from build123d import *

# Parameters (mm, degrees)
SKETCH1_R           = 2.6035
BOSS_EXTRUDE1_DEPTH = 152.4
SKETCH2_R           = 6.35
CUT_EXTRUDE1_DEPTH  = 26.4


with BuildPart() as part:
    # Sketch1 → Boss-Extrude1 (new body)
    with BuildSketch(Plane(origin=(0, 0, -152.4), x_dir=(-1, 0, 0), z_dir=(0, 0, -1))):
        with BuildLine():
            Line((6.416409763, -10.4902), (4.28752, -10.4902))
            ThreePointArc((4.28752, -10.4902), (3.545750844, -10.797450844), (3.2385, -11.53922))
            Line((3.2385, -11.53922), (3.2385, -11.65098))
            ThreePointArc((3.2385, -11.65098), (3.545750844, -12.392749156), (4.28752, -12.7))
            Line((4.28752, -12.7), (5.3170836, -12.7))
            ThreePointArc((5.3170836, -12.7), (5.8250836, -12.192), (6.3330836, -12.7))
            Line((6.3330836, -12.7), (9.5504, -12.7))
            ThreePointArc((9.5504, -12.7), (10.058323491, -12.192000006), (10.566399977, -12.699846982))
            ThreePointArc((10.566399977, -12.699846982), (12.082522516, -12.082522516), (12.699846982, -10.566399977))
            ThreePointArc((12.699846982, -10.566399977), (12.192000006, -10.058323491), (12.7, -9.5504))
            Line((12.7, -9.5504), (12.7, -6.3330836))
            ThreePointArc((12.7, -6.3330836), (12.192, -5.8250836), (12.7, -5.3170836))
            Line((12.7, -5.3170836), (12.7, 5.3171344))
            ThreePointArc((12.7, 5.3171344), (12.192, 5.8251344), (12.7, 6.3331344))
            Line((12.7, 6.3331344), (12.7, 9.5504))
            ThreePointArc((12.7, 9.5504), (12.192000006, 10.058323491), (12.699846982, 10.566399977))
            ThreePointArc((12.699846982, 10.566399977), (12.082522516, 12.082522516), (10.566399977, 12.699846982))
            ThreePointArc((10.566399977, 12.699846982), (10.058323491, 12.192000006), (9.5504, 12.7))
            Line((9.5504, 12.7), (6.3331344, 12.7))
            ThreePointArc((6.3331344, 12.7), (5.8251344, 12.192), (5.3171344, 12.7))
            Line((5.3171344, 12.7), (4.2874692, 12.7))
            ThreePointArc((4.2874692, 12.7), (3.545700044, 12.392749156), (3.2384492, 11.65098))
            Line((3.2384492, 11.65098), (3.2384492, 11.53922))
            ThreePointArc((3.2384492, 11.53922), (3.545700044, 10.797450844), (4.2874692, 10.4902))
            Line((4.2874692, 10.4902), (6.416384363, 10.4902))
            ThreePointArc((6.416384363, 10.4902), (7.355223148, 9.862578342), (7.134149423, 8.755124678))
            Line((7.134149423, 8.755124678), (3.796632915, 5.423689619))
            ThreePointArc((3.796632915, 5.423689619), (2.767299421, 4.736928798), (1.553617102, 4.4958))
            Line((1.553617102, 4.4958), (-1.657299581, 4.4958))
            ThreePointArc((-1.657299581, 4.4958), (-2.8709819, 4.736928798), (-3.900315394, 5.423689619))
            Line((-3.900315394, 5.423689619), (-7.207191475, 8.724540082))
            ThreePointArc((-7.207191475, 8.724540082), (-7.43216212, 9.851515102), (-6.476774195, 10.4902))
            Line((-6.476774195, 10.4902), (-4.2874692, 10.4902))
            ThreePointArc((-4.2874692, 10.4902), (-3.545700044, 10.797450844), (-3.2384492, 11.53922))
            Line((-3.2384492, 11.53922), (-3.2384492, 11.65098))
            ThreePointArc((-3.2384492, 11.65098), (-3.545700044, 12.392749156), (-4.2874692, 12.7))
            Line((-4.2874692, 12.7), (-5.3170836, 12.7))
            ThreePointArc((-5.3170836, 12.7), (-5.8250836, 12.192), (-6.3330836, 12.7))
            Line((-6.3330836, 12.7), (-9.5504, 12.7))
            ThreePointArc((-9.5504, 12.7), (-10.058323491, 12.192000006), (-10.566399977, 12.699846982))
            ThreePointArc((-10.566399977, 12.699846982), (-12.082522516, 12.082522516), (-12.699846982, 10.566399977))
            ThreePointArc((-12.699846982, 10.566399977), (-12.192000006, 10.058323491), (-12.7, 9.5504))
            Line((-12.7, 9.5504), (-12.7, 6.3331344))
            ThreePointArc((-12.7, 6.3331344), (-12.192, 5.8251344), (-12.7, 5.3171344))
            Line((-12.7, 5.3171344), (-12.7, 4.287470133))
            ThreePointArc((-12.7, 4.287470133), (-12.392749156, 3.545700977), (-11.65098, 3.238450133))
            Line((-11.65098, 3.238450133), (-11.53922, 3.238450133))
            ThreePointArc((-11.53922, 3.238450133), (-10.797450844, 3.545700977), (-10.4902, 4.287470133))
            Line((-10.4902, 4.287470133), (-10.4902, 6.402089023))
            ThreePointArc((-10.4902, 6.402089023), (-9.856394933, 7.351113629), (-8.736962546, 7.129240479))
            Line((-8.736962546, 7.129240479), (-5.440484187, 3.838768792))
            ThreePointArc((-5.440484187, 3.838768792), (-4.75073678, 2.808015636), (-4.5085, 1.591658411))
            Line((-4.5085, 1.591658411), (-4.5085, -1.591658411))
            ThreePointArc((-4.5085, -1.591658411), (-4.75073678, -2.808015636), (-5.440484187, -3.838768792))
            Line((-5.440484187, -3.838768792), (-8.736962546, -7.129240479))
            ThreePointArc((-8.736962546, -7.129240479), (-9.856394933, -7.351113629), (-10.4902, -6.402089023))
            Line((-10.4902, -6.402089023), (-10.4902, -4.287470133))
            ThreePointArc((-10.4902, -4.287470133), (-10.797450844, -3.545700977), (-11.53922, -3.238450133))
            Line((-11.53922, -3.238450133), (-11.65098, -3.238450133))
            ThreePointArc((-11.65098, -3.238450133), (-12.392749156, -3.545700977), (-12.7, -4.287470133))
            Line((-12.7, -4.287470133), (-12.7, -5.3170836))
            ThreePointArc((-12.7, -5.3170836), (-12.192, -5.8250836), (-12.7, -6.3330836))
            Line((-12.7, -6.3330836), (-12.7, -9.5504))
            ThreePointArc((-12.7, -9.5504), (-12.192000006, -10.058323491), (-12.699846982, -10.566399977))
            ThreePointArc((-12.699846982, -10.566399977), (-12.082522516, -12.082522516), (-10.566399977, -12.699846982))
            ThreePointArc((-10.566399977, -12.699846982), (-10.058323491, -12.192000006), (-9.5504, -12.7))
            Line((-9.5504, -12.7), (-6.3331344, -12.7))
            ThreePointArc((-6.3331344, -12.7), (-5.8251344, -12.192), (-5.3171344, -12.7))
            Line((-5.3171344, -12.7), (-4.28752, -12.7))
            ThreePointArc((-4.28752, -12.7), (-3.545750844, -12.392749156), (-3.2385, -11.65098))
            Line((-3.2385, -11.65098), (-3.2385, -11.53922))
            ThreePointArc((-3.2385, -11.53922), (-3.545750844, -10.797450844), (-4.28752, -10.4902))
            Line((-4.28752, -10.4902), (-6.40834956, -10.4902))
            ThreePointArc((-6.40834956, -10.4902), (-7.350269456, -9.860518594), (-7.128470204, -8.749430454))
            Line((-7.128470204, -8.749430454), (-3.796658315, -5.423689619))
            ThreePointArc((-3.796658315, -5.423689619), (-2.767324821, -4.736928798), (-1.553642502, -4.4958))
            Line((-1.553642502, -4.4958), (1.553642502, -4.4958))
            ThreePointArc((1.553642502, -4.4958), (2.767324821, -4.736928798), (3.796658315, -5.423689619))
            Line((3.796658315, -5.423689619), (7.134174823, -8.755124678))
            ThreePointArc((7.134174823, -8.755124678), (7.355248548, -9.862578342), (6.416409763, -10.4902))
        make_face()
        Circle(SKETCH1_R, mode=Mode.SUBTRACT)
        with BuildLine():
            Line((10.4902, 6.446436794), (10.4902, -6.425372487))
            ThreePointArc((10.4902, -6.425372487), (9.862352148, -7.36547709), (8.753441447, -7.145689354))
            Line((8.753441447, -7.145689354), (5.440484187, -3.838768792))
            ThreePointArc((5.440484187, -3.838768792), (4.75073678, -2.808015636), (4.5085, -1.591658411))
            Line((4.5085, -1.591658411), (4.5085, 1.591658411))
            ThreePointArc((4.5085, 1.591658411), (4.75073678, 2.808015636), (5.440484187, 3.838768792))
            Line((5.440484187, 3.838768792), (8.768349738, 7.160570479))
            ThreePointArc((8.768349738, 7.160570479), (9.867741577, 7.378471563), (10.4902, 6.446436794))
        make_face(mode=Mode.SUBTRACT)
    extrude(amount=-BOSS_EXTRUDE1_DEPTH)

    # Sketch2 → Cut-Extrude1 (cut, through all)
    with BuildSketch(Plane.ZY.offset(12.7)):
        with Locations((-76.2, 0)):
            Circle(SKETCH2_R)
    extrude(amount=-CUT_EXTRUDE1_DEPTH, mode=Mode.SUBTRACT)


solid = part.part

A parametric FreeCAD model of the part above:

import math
import FreeCAD as App
import Part
import Sketcher
Q = App.Units.Quantity

doc = App.newDocument("Part")
params = doc.addObject("Spreadsheet::Sheet", "Params")
for row, (alias, value) in enumerate([
    ("sketch1_radius", "0.02 in"),
    ("sketch1_radius2", "0.04 in"),
    ("sketch1_diameter", "0.205 in"),
    ("sketch1_radius3", "0.083 in"),
    ("sketch1_radius4", "0.125 in"),
    ("pad1_length", "6 in"),
    ("sketch2_diameter", "0.5 in"),
], start=1):
    params.set(f"A{row}", alias)
    params.set(f"B{row}", "=" + value)
    params.setAlias(f"B{row}", alias)

body = doc.addObject("PartDesign::Body", "Body")

# Sketch on XY plane
sketch1 = doc.addObject("Sketcher::SketchObject", "Sketch")
body.addObject(sketch1)
sketch1.AttachmentSupport = (doc.XY_Plane, [""])
sketch1.MapMode = "FlatFace"
sketch1.AttachmentOffset = App.Placement(App.Vector(0, 0, -6 * 25.4), App.Rotation())
sketch1.addGeometry(Part.LineSegment(App.Vector(-6.42, -10.49, 0), App.Vector(-4.29, -10.49, 0)), False)
sketch1.addGeometry(Part.ArcOfCircle(Part.Circle(App.Vector(-4.29, -11.54, 0), App.Vector(0, 0, 1), 1.05), math.radians(0), math.radians(90)), False)
sketch1.addGeometry(Part.LineSegment(App.Vector(-3.24, -11.54, 0), App.Vector(-3.24, -11.65, 0)), False)
sketch1.addGeometry(Part.ArcOfCircle(Part.Circle(App.Vector(-4.29, -11.65, 0), App.Vector(0, 0, 1), 1.05), math.radians(-90), math.radians(0)), False)
sketch1.addGeometry(Part.LineSegment(App.Vector(-4.29, -12.7, 0), App.Vector(-5.32, -12.7, 0)), False)
sketch1.addGeometry(Part.ArcOfCircle(Part.Circle(App.Vector(-5.83, -12.7, 0), App.Vector(0, 0, 1), 0.51), math.radians(0), math.radians(180)), False)
sketch1.addGeometry(Part.LineSegment(App.Vector(-6.33, -12.7, 0), App.Vector(-9.55, -12.7, 0)), False)
sketch1.addGeometry(Part.ArcOfCircle(Part.Circle(App.Vector(-10.06, -12.7, 0), App.Vector(0, 0, 1), 0.51), math.radians(0), math.radians(180)), False)
sketch1.addGeometry(Part.ArcOfCircle(Part.Circle(App.Vector(-10.59, -10.59, 0), App.Vector(0, 0, 1), 2.11), math.radians(179), math.radians(271)), False)
sketch1.addGeometry(Part.ArcOfCircle(Part.Circle(App.Vector(-12.7, -10.06, 0), App.Vector(0, 0, 1), 0.51), math.radians(-90), math.radians(90)), False)
sketch1.addGeometry(Part.LineSegment(App.Vector(-12.7, -9.55, 0), App.Vector(-12.7, -6.33, 0)), False)
sketch1.addGeometry(Part.ArcOfCircle(Part.Circle(App.Vector(-12.7, -5.83, 0), App.Vector(0, 0, 1), 0.51), math.radians(-90), math.radians(90)), False)
sketch1.addGeometry(Part.LineSegment(App.Vector(-12.7, -5.32, 0), App.Vector(-12.7, 5.32, 0)), False)
sketch1.addGeometry(Part.ArcOfCircle(Part.Circle(App.Vector(-12.7, 5.83, 0), App.Vector(0, 0, 1), 0.51), math.radians(-90), math.radians(90)), False)
sketch1.addGeometry(Part.LineSegment(App.Vector(-12.7, 6.33, 0), App.Vector(-12.7, 9.55, 0)), False)
sketch1.addGeometry(Part.ArcOfCircle(Part.Circle(App.Vector(-12.7, 10.06, 0), App.Vector(0, 0, 1), 0.51), math.radians(-90), math.radians(90)), False)
sketch1.addGeometry(Part.ArcOfCircle(Part.Circle(App.Vector(-10.59, 10.59, 0), App.Vector(0, 0, 1), 2.11), math.radians(89), math.radians(181)), False)
sketch1.addGeometry(Part.ArcOfCircle(Part.Circle(App.Vector(-10.06, 12.7, 0), App.Vector(0, 0, 1), 0.51), math.radians(-180), math.radians(0)), False)
sketch1.addGeometry(Part.LineSegment(App.Vector(-9.55, 12.7, 0), App.Vector(-6.33, 12.7, 0)), False)
sketch1.addGeometry(Part.ArcOfCircle(Part.Circle(App.Vector(-5.83, 12.7, 0), App.Vector(0, 0, 1), 0.51), math.radians(180), math.radians(360)), False)
sketch1.addGeometry(Part.LineSegment(App.Vector(-5.32, 12.7, 0), App.Vector(-4.29, 12.7, 0)), False)
sketch1.addGeometry(Part.ArcOfCircle(Part.Circle(App.Vector(-4.29, 11.65, 0), App.Vector(0, 0, 1), 1.05), math.radians(0), math.radians(90)), False)
sketch1.addGeometry(Part.LineSegment(App.Vector(-3.24, 11.65, 0), App.Vector(-3.24, 11.54, 0)), False)
sketch1.addGeometry(Part.ArcOfCircle(Part.Circle(App.Vector(-4.29, 11.54, 0), App.Vector(0, 0, 1), 1.05), math.radians(-90), math.radians(0)), False)
sketch1.addGeometry(Part.LineSegment(App.Vector(-4.29, 10.49, 0), App.Vector(-6.42, 10.49, 0)), False)
sketch1.addGeometry(Part.ArcOfCircle(Part.Circle(App.Vector(-6.42, 9.47, 0), App.Vector(0, 0, 1), 1.02), math.radians(90), math.radians(225)), False)
sketch1.addGeometry(Part.LineSegment(App.Vector(-7.13, 8.76, 0), App.Vector(-3.8, 5.42, 0)), False)
sketch1.addGeometry(Part.ArcOfCircle(Part.Circle(App.Vector(-1.55, 7.67, 0), App.Vector(0, 0, 1), 3.17), math.radians(-135), math.radians(-90)), False)
sketch1.addGeometry(Part.LineSegment(App.Vector(-1.55, 4.5, 0), App.Vector(1.66, 4.5, 0)), False)
sketch1.addGeometry(Part.ArcOfCircle(Part.Circle(App.Vector(1.66, 7.67, 0), App.Vector(0, 0, 1), 3.17), math.radians(-90), math.radians(-45)), False)
sketch1.addGeometry(Part.LineSegment(App.Vector(3.9, 5.42, 0), App.Vector(7.21, 8.72, 0)), False)
sketch1.addGeometry(Part.ArcOfCircle(Part.Circle(App.Vector(6.48, 9.46, 0), App.Vector(0, 0, 1), 1.03), math.radians(-45), math.radians(90)), False)
sketch1.addGeometry(Part.LineSegment(App.Vector(6.48, 10.49, 0), App.Vector(4.29, 10.49, 0)), False)
sketch1.addGeometry(Part.ArcOfCircle(Part.Circle(App.Vector(4.29, 11.54, 0), App.Vector(0, 0, 1), 1.05), math.radians(180), math.radians(270)), False)
sketch1.addGeometry(Part.LineSegment(App.Vector(3.24, 11.54, 0), App.Vector(3.24, 11.65, 0)), False)
sketch1.addGeometry(Part.ArcOfCircle(Part.Circle(App.Vector(4.29, 11.65, 0), App.Vector(0, 0, 1), 1.05), math.radians(90), math.radians(180)), False)
sketch1.addGeometry(Part.LineSegment(App.Vector(4.29, 12.7, 0), App.Vector(5.32, 12.7, 0)), False)
sketch1.addGeometry(Part.ArcOfCircle(Part.Circle(App.Vector(5.83, 12.7, 0), App.Vector(0, 0, 1), 0.51), math.radians(180), math.radians(360)), False)
sketch1.addGeometry(Part.LineSegment(App.Vector(6.33, 12.7, 0), App.Vector(9.55, 12.7, 0)), False)
sketch1.addGeometry(Part.ArcOfCircle(Part.Circle(App.Vector(10.06, 12.7, 0), App.Vector(0, 0, 1), 0.51), math.radians(180), math.radians(360)), False)
sketch1.addGeometry(Part.ArcOfCircle(Part.Circle(App.Vector(10.59, 10.59, 0), App.Vector(0, 0, 1), 2.11), math.radians(-1), math.radians(91)), False)
sketch1.addGeometry(Part.ArcOfCircle(Part.Circle(App.Vector(12.7, 10.06, 0), App.Vector(0, 0, 1), 0.51), math.radians(90), math.radians(270)), False)
sketch1.addGeometry(Part.LineSegment(App.Vector(12.7, 9.55, 0), App.Vector(12.7, 6.33, 0)), False)
sketch1.addGeometry(Part.ArcOfCircle(Part.Circle(App.Vector(12.7, 5.83, 0), App.Vector(0, 0, 1), 0.51), math.radians(90), math.radians(270)), False)
sketch1.addGeometry(Part.LineSegment(App.Vector(12.7, 5.32, 0), App.Vector(12.7, 4.29, 0)), False)
sketch1.addGeometry(Part.ArcOfCircle(Part.Circle(App.Vector(11.65, 4.29, 0), App.Vector(0, 0, 1), 1.05), math.radians(-90), math.radians(0)), False)
sketch1.addGeometry(Part.LineSegment(App.Vector(11.65, 3.24, 0), App.Vector(11.54, 3.24, 0)), False)
sketch1.addGeometry(Part.ArcOfCircle(Part.Circle(App.Vector(11.54, 4.29, 0), App.Vector(0, 0, 1), 1.05), math.radians(180), math.radians(270)), False)
sketch1.addGeometry(Part.LineSegment(App.Vector(10.49, 4.29, 0), App.Vector(10.49, 6.4, 0)), False)
sketch1.addGeometry(Part.ArcOfCircle(Part.Circle(App.Vector(9.46, 6.4, 0), App.Vector(0, 0, 1), 1.03), math.radians(0), math.radians(135)), False)
sketch1.addGeometry(Part.LineSegment(App.Vector(8.74, 7.13, 0), App.Vector(5.44, 3.84, 0)), False)
sketch1.addGeometry(Part.ArcOfCircle(Part.Circle(App.Vector(7.68, 1.59, 0), App.Vector(0, 0, 1), 3.17), math.radians(135), math.radians(180)), False)
sketch1.addGeometry(Part.LineSegment(App.Vector(4.51, 1.59, 0), App.Vector(4.51, -1.59, 0)), False)
sketch1.addGeometry(Part.ArcOfCircle(Part.Circle(App.Vector(7.68, -1.59, 0), App.Vector(0, 0, 1), 3.17), math.radians(180), math.radians(225)), False)
sketch1.addGeometry(Part.LineSegment(App.Vector(5.44, -3.84, 0), App.Vector(8.74, -7.13, 0)), False)
sketch1.addGeometry(Part.ArcOfCircle(Part.Circle(App.Vector(9.46, -6.4, 0), App.Vector(0, 0, 1), 1.03), math.radians(-135), math.radians(0)), False)
sketch1.addGeometry(Part.LineSegment(App.Vector(10.49, -6.4, 0), App.Vector(10.49, -4.29, 0)), False)
sketch1.addGeometry(Part.ArcOfCircle(Part.Circle(App.Vector(11.54, -4.29, 0), App.Vector(0, 0, 1), 1.05), math.radians(90), math.radians(180)), False)
sketch1.addGeometry(Part.LineSegment(App.Vector(11.54, -3.24, 0), App.Vector(11.65, -3.24, 0)), False)
sketch1.addGeometry(Part.ArcOfCircle(Part.Circle(App.Vector(11.65, -4.29, 0), App.Vector(0, 0, 1), 1.05), math.radians(0), math.radians(90)), False)
sketch1.addGeometry(Part.LineSegment(App.Vector(12.7, -4.29, 0), App.Vector(12.7, -5.32, 0)), False)
sketch1.addGeometry(Part.ArcOfCircle(Part.Circle(App.Vector(12.7, -5.83, 0), App.Vector(0, 0, 1), 0.51), math.radians(90), math.radians(270)), False)
sketch1.addGeometry(Part.LineSegment(App.Vector(12.7, -6.33, 0), App.Vector(12.7, -9.55, 0)), False)
sketch1.addGeometry(Part.ArcOfCircle(Part.Circle(App.Vector(12.7, -10.06, 0), App.Vector(0, 0, 1), 0.51), math.radians(90), math.radians(270)), False)
sketch1.addGeometry(Part.ArcOfCircle(Part.Circle(App.Vector(10.59, -10.59, 0), App.Vector(0, 0, 1), 2.11), math.radians(-91), math.radians(1)), False)
sketch1.addGeometry(Part.ArcOfCircle(Part.Circle(App.Vector(10.06, -12.7, 0), App.Vector(0, 0, 1), 0.51), math.radians(0), math.radians(180)), False)
sketch1.addGeometry(Part.LineSegment(App.Vector(9.55, -12.7, 0), App.Vector(6.33, -12.7, 0)), False)
sketch1.addGeometry(Part.ArcOfCircle(Part.Circle(App.Vector(5.83, -12.7, 0), App.Vector(0, 0, 1), 0.51), math.radians(0), math.radians(180)), False)
sketch1.addGeometry(Part.LineSegment(App.Vector(5.32, -12.7, 0), App.Vector(4.29, -12.7, 0)), False)
sketch1.addGeometry(Part.ArcOfCircle(Part.Circle(App.Vector(4.29, -11.65, 0), App.Vector(0, 0, 1), 1.05), math.radians(180), math.radians(270)), False)
sketch1.addGeometry(Part.LineSegment(App.Vector(3.24, -11.65, 0), App.Vector(3.24, -11.54, 0)), False)
sketch1.addGeometry(Part.ArcOfCircle(Part.Circle(App.Vector(4.29, -11.54, 0), App.Vector(0, 0, 1), 1.05), math.radians(90), math.radians(180)), False)
sketch1.addGeometry(Part.LineSegment(App.Vector(4.29, -10.49, 0), App.Vector(6.41, -10.49, 0)), False)
sketch1.addGeometry(Part.ArcOfCircle(Part.Circle(App.Vector(6.41, -9.47, 0), App.Vector(0, 0, 1), 1.02), math.radians(-90), math.radians(45)), False)
sketch1.addGeometry(Part.LineSegment(App.Vector(7.13, -8.75, 0), App.Vector(3.8, -5.42, 0)), False)
sketch1.addGeometry(Part.ArcOfCircle(Part.Circle(App.Vector(1.55, -7.67, 0), App.Vector(0, 0, 1), 3.17), math.radians(45), math.radians(90)), False)
sketch1.addGeometry(Part.LineSegment(App.Vector(1.55, -4.5, 0), App.Vector(-1.55, -4.5, 0)), False)
sketch1.addGeometry(Part.ArcOfCircle(Part.Circle(App.Vector(-1.55, -7.67, 0), App.Vector(0, 0, 1), 3.17), math.radians(90), math.radians(135)), False)
sketch1.addGeometry(Part.LineSegment(App.Vector(-3.8, -5.42, 0), App.Vector(-7.13, -8.76, 0)), False)
sketch1.addGeometry(Part.ArcOfCircle(Part.Circle(App.Vector(-6.42, -9.47, 0), App.Vector(0, 0, 1), 1.02), math.radians(135), math.radians(270)), False)
sketch1.addGeometry(Part.Circle(App.Vector(0, 0, 0), App.Vector(0, 0, 1), 2.6), False)
sketch1.addGeometry(Part.ArcOfCircle(Part.Circle(App.Vector(-9.48, 6.45, 0), App.Vector(0, 0, 1), 1.01), math.radians(45), math.radians(180)), False)
sketch1.addGeometry(Part.LineSegment(App.Vector(-10.49, 6.45, 0), App.Vector(-10.49, -6.43, 0)), False)
sketch1.addGeometry(Part.ArcOfCircle(Part.Circle(App.Vector(-9.47, -6.43, 0), App.Vector(0, 0, 1), 1.02), math.radians(180), math.radians(315)), False)
sketch1.addGeometry(Part.LineSegment(App.Vector(-8.75, -7.15, 0), App.Vector(-5.44, -3.84, 0)), False)
sketch1.addGeometry(Part.ArcOfCircle(Part.Circle(App.Vector(-7.68, -1.59, 0), App.Vector(0, 0, 1), 3.17), math.radians(-45), math.radians(0)), False)
sketch1.addGeometry(Part.LineSegment(App.Vector(-4.51, -1.59, 0), App.Vector(-4.51, 1.59, 0)), False)
sketch1.addGeometry(Part.ArcOfCircle(Part.Circle(App.Vector(-7.68, 1.59, 0), App.Vector(0, 0, 1), 3.17), math.radians(0), math.radians(45)), False)
sketch1.addGeometry(Part.LineSegment(App.Vector(-5.44, 3.84, 0), App.Vector(-8.77, 7.16, 0)), False)
sketch1.addConstraint(Sketcher.Constraint("Tangent", 0, 2, 1, 2))
sketch1.addConstraint(Sketcher.Constraint("Tangent", 1, 1, 2, 1))
sketch1.addConstraint(Sketcher.Constraint("Tangent", 2, 2, 3, 2))
sketch1.addConstraint(Sketcher.Constraint("Tangent", 3, 1, 4, 1))
sketch1.addConstraint(Sketcher.Constraint("Coincident", 4, 2, 5, 1))
sketch1.addConstraint(Sketcher.Constraint("Coincident", 5, 2, 6, 1))
sketch1.addConstraint(Sketcher.Constraint("Coincident", 6, 2, 7, 1))
sketch1.addConstraint(Sketcher.Constraint("Coincident", 7, 2, 8, 2))
sketch1.addConstraint(Sketcher.Constraint("Coincident", 8, 1, 9, 1))
sketch1.addConstraint(Sketcher.Constraint("Coincident", 9, 2, 10, 1))
sketch1.addConstraint(Sketcher.Constraint("Coincident", 10, 2, 11, 1))
sketch1.addConstraint(Sketcher.Constraint("Coincident", 11, 2, 12, 1))
sketch1.addConstraint(Sketcher.Constraint("Coincident", 12, 2, 13, 1))
sketch1.addConstraint(Sketcher.Constraint("Coincident", 13, 2, 14, 1))
sketch1.addConstraint(Sketcher.Constraint("Coincident", 14, 2, 15, 1))
sketch1.addConstraint(Sketcher.Constraint("Coincident", 15, 2, 16, 2))
sketch1.addConstraint(Sketcher.Constraint("Coincident", 16, 1, 17, 1))
sketch1.addConstraint(Sketcher.Constraint("Coincident", 17, 2, 18, 1))
sketch1.addConstraint(Sketcher.Constraint("Coincident", 18, 2, 19, 1))
sketch1.addConstraint(Sketcher.Constraint("Coincident", 19, 2, 20, 1))
sketch1.addConstraint(Sketcher.Constraint("Tangent", 20, 2, 21, 2))
sketch1.addConstraint(Sketcher.Constraint("Tangent", 21, 1, 22, 1))
sketch1.addConstraint(Sketcher.Constraint("Tangent", 22, 2, 23, 2))
sketch1.addConstraint(Sketcher.Constraint("Tangent", 23, 1, 24, 1))
sketch1.addConstraint(Sketcher.Constraint("Tangent", 24, 2, 25, 1))
sketch1.addConstraint(Sketcher.Constraint("Tangent", 25, 2, 26, 1))
sketch1.addConstraint(Sketcher.Constraint("Tangent", 26, 2, 27, 1))
sketch1.addConstraint(Sketcher.Constraint("Tangent", 27, 2, 28, 1))
sketch1.addConstraint(Sketcher.Constraint("Tangent", 28, 2, 29, 1))
sketch1.addConstraint(Sketcher.Constraint("Tangent", 29, 2, 30, 1))
sketch1.addConstraint(Sketcher.Constraint("Tangent", 30, 2, 31, 1))
sketch1.addConstraint(Sketcher.Constraint("Tangent", 31, 2, 32, 1))
sketch1.addConstraint(Sketcher.Constraint("Tangent", 32, 2, 33, 2))
sketch1.addConstraint(Sketcher.Constraint("Tangent", 33, 1, 34, 1))
sketch1.addConstraint(Sketcher.Constraint("Tangent", 34, 2, 35, 2))
sketch1.addConstraint(Sketcher.Constraint("Tangent", 35, 1, 36, 1))
sketch1.addConstraint(Sketcher.Constraint("Coincident", 36, 2, 37, 1))
sketch1.addConstraint(Sketcher.Constraint("Coincident", 37, 2, 38, 1))
sketch1.addConstraint(Sketcher.Constraint("Coincident", 38, 2, 39, 1))
sketch1.addConstraint(Sketcher.Constraint("Coincident", 39, 2, 40, 2))
sketch1.addConstraint(Sketcher.Constraint("Coincident", 40, 1, 41, 1))
sketch1.addConstraint(Sketcher.Constraint("Coincident", 41, 2, 42, 1))
sketch1.addConstraint(Sketcher.Constraint("Coincident", 42, 2, 43, 1))
sketch1.addConstraint(Sketcher.Constraint("Coincident", 43, 2, 44, 1))
sketch1.addConstraint(Sketcher.Constraint("Tangent", 44, 2, 45, 2))
sketch1.addConstraint(Sketcher.Constraint("Tangent", 45, 1, 46, 1))
sketch1.addConstraint(Sketcher.Constraint("Tangent", 46, 2, 47, 2))
sketch1.addConstraint(Sketcher.Constraint("Tangent", 47, 1, 48, 1))
sketch1.addConstraint(Sketcher.Constraint("Tangent", 48, 2, 49, 1))
sketch1.addConstraint(Sketcher.Constraint("Tangent", 49, 2, 50, 1))
sketch1.addConstraint(Sketcher.Constraint("Tangent", 50, 2, 51, 1))
sketch1.addConstraint(Sketcher.Constraint("Tangent", 51, 2, 52, 1))
sketch1.addConstraint(Sketcher.Constraint("Tangent", 52, 2, 53, 1))
sketch1.addConstraint(Sketcher.Constraint("Tangent", 53, 2, 54, 1))
sketch1.addConstraint(Sketcher.Constraint("Tangent", 54, 2, 55, 1))
sketch1.addConstraint(Sketcher.Constraint("Tangent", 55, 2, 56, 1))
sketch1.addConstraint(Sketcher.Constraint("Tangent", 56, 2, 57, 2))
sketch1.addConstraint(Sketcher.Constraint("Tangent", 57, 1, 58, 1))
sketch1.addConstraint(Sketcher.Constraint("Tangent", 58, 2, 59, 2))
sketch1.addConstraint(Sketcher.Constraint("Tangent", 59, 1, 60, 1))
sketch1.addConstraint(Sketcher.Constraint("Coincident", 60, 2, 61, 1))
sketch1.addConstraint(Sketcher.Constraint("Coincident", 61, 2, 62, 1))
sketch1.addConstraint(Sketcher.Constraint("Coincident", 62, 2, 63, 1))
sketch1.addConstraint(Sketcher.Constraint("Coincident", 63, 2, 64, 2))
sketch1.addConstraint(Sketcher.Constraint("Coincident", 64, 1, 65, 1))
sketch1.addConstraint(Sketcher.Constraint("Coincident", 65, 2, 66, 1))
sketch1.addConstraint(Sketcher.Constraint("Coincident", 66, 2, 67, 1))
sketch1.addConstraint(Sketcher.Constraint("Coincident", 67, 2, 68, 1))
sketch1.addConstraint(Sketcher.Constraint("Tangent", 68, 2, 69, 2))
sketch1.addConstraint(Sketcher.Constraint("Tangent", 69, 1, 70, 1))
sketch1.addConstraint(Sketcher.Constraint("Tangent", 70, 2, 71, 2))
sketch1.addConstraint(Sketcher.Constraint("Tangent", 71, 1, 72, 1))
sketch1.addConstraint(Sketcher.Constraint("Tangent", 72, 2, 73, 1))
sketch1.addConstraint(Sketcher.Constraint("Tangent", 73, 2, 74, 1))
sketch1.addConstraint(Sketcher.Constraint("Tangent", 74, 2, 75, 1))
sketch1.addConstraint(Sketcher.Constraint("Tangent", 75, 2, 76, 1))
sketch1.addConstraint(Sketcher.Constraint("Tangent", 76, 2, 77, 1))
sketch1.addConstraint(Sketcher.Constraint("Tangent", 77, 2, 78, 1))
sketch1.addConstraint(Sketcher.Constraint("Tangent", 78, 2, 79, 1))
sketch1.addConstraint(Sketcher.Constraint("Tangent", 79, 2, 0, 1))
sketch1.addConstraint(Sketcher.Constraint("Tangent", 81, 2, 82, 1))
sketch1.addConstraint(Sketcher.Constraint("Tangent", 82, 2, 83, 1))
sketch1.addConstraint(Sketcher.Constraint("Tangent", 83, 2, 84, 1))
sketch1.addConstraint(Sketcher.Constraint("Tangent", 84, 2, 85, 1))
sketch1.addConstraint(Sketcher.Constraint("Tangent", 85, 2, 86, 1))
sketch1.addConstraint(Sketcher.Constraint("Tangent", 86, 2, 87, 1))
sketch1.addConstraint(Sketcher.Constraint("Tangent", 87, 2, 88, 1))
sketch1.addConstraint(Sketcher.Constraint("Tangent", 88, 2, 81, 1))
sketch1.addConstraint(Sketcher.Constraint("Horizontal", 0))
sketch1.addConstraint(Sketcher.Constraint("Vertical", 2))
sketch1.addConstraint(Sketcher.Constraint("Horizontal", 4))
sketch1.addConstraint(Sketcher.Constraint("Horizontal", 6))
sketch1.addConstraint(Sketcher.Constraint("Vertical", 10))
sketch1.addConstraint(Sketcher.Constraint("Vertical", 12))
sketch1.addConstraint(Sketcher.Constraint("Vertical", 14))
sketch1.addConstraint(Sketcher.Constraint("Horizontal", 18))
sketch1.addConstraint(Sketcher.Constraint("Horizontal", 20))
sketch1.addConstraint(Sketcher.Constraint("Vertical", 22))
sketch1.addConstraint(Sketcher.Constraint("Horizontal", 24))
sketch1.addConstraint(Sketcher.Constraint("Horizontal", 28))
sketch1.addConstraint(Sketcher.Constraint("Horizontal", 32))
sketch1.addConstraint(Sketcher.Constraint("Vertical", 34))
sketch1.addConstraint(Sketcher.Constraint("Horizontal", 36))
sketch1.addConstraint(Sketcher.Constraint("Horizontal", 38))
sketch1.addConstraint(Sketcher.Constraint("Vertical", 42))
sketch1.addConstraint(Sketcher.Constraint("Vertical", 44))
sketch1.addConstraint(Sketcher.Constraint("Horizontal", 46))
sketch1.addConstraint(Sketcher.Constraint("Vertical", 48))
sketch1.addConstraint(Sketcher.Constraint("Vertical", 52))
sketch1.addConstraint(Sketcher.Constraint("Vertical", 56))
sketch1.addConstraint(Sketcher.Constraint("Horizontal", 58))
sketch1.addConstraint(Sketcher.Constraint("Vertical", 60))
sketch1.addConstraint(Sketcher.Constraint("Vertical", 62))
sketch1.addConstraint(Sketcher.Constraint("Horizontal", 66))
sketch1.addConstraint(Sketcher.Constraint("Horizontal", 68))
sketch1.addConstraint(Sketcher.Constraint("Vertical", 70))
sketch1.addConstraint(Sketcher.Constraint("Horizontal", 72))
sketch1.addConstraint(Sketcher.Constraint("Horizontal", 76))
sketch1.addConstraint(Sketcher.Constraint("Vertical", 82))
sketch1.addConstraint(Sketcher.Constraint("Vertical", 86))
sketch1.addConstraint(Sketcher.Constraint("Coincident", 80, 3, -1, 1))
sketch1.addConstraint(Sketcher.Constraint("Equal", 1, 3))
sketch1.addConstraint(Sketcher.Constraint("Equal", 5, 7))
sketch1.addConstraint(Sketcher.Constraint("Equal", 7, 9))
sketch1.addConstraint(Sketcher.Constraint("Equal", 9, 11))
sketch1.addConstraint(Sketcher.Constraint("Equal", 11, 13))
sketch1.addConstraint(Sketcher.Constraint("Equal", 13, 15))
sketch1.addConstraint(Sketcher.Constraint("Equal", 8, 16))
sketch1.addConstraint(Sketcher.Constraint("Equal", 15, 17))
sketch1.addConstraint(Sketcher.Constraint("Equal", 17, 19))
sketch1.addConstraint(Sketcher.Constraint("Equal", 3, 21))
sketch1.addConstraint(Sketcher.Constraint("Equal", 21, 23))
sketch1.addConstraint(Sketcher.Constraint("Equal", 27, 29))
sketch1.addConstraint(Sketcher.Constraint("Equal", 23, 33))
sketch1.addConstraint(Sketcher.Constraint("Equal", 33, 35))
sketch1.addConstraint(Sketcher.Constraint("Equal", 19, 37))
sketch1.addConstraint(Sketcher.Constraint("Equal", 37, 39))
sketch1.addConstraint(Sketcher.Constraint("Equal", 16, 40))
sketch1.addConstraint(Sketcher.Constraint("Equal", 39, 41))
sketch1.addConstraint(Sketcher.Constraint("Equal", 41, 43))
sketch1.addConstraint(Sketcher.Constraint("Equal", 35, 45))
sketch1.addConstraint(Sketcher.Constraint("Equal", 45, 47))
sketch1.addConstraint(Sketcher.Constraint("Equal", 29, 51))
sketch1.addConstraint(Sketcher.Constraint("Equal", 51, 53))
sketch1.addConstraint(Sketcher.Constraint("Equal", 49, 55))
sketch1.addConstraint(Sketcher.Constraint("Equal", 47, 57))
sketch1.addConstraint(Sketcher.Constraint("Equal", 57, 59))
sketch1.addConstraint(Sketcher.Constraint("Equal", 43, 61))
sketch1.addConstraint(Sketcher.Constraint("Equal", 61, 63))
sketch1.addConstraint(Sketcher.Constraint("Equal", 40, 64))
sketch1.addConstraint(Sketcher.Constraint("Equal", 63, 65))
sketch1.addConstraint(Sketcher.Constraint("Equal", 65, 67))
sketch1.addConstraint(Sketcher.Constraint("Equal", 59, 69))
sketch1.addConstraint(Sketcher.Constraint("Equal", 69, 71))
sketch1.addConstraint(Sketcher.Constraint("Equal", 53, 75))
sketch1.addConstraint(Sketcher.Constraint("Equal", 75, 77))
sketch1.addConstraint(Sketcher.Constraint("Equal", 25, 79))
sketch1.addConstraint(Sketcher.Constraint("Equal", 77, 85))
sketch1.addConstraint(Sketcher.Constraint("Equal", 85, 87))
sketch1.addConstraint(Sketcher.Constraint("Symmetric", 5, 3, 37, 3, -1, 1))
sketch1.addConstraint(Sketcher.Constraint("Symmetric", 7, 3, 39, 3, -1, 1))
sketch1.addConstraint(Sketcher.Constraint("Symmetric", 8, 3, 40, 3, -1, 1))
sketch1.addConstraint(Sketcher.Constraint("Symmetric", 9, 3, 41, 3, -1, 1))
sketch1.addConstraint(Sketcher.Constraint("Symmetric", 15, 3, 63, 3, -1, 1))
sketch1.addConstraint(Sketcher.Constraint("Symmetric", 16, 3, 64, 3, -1, 1))
sketch1.addConstraint(Sketcher.Constraint("Symmetric", 17, 3, 65, 3, -1, 1))
sketch1.addConstraint(Sketcher.Constraint("Symmetric", 19, 3, 67, 3, -1, 1))
sketch1.addConstraint(Sketcher.Constraint("Symmetric", 51, 3, 85, 3, -1, 1))
sketch1.addConstraint(Sketcher.Constraint("Symmetric", 53, 2, 87, 2, -1, 1))
sketch1.addConstraint(Sketcher.Constraint("Symmetric", 23, 3, 33, 3, -2))
sketch1.addConstraint(Sketcher.Constraint("Symmetric", 17, 3, 39, 3, -2))
sketch1.addConstraint(Sketcher.Constraint("Symmetric", 16, 3, 40, 3, -2))
sketch1.addConstraint(Sketcher.Constraint("Symmetric", 15, 3, 41, 3, -2))
sketch1.addConstraint(Sketcher.Constraint("Symmetric", 13, 3, 43, 3, -2))
sketch1.addConstraint(Sketcher.Constraint("Symmetric", 11, 3, 61, 3, -2))
sketch1.addConstraint(Sketcher.Constraint("Symmetric", 3, 3, 69, 3, -2))
sketch1.addConstraint(Sketcher.Constraint("Symmetric", 74, 2, 77, 2, -2))
sketch1.addConstraint(Sketcher.Constraint("Symmetric", 53, 2, 84, 2, -2))
sketch1.addConstraint(Sketcher.Constraint("Symmetric", 49, 3, 55, 3, -1))
sketch1.addConstraint(Sketcher.Constraint("Symmetric", 45, 3, 59, 3, -1))
sketch1.addConstraint(Sketcher.Constraint("Parallel", 30, 50))
sketch1.addConstraint(Sketcher.Constraint("Parallel", 26, 54))
sketch1.addConstraint(Sketcher.Constraint("Parallel", 54, 74))
sketch1.addConstraint(Sketcher.Constraint("Horizontal", 5, 3, 7, 3))
sketch1.addConstraint(Sketcher.Constraint("Horizontal", 17, 3, 19, 3))
sketch1.addConstraint(Sketcher.Constraint("Horizontal", 21, 3, 35, 3))
sketch1.addConstraint(Sketcher.Constraint("Horizontal", 1, 3, 71, 3))
sketch1.addConstraint(Sketcher.Constraint("Horizontal", 67, 3, 3, 1))
sketch1.addConstraint(Sketcher.Constraint("Horizontal", 4, 2, 5, 2))
sketch1.addConstraint(Sketcher.Constraint("Horizontal", 39, 3, 17, 2))
sketch1.addConstraint(Sketcher.Constraint("Horizontal", 18, 2, 19, 2))
sketch1.addConstraint(Sketcher.Constraint("Horizontal", 36, 2, 37, 2))
sketch1.addConstraint(Sketcher.Constraint("Horizontal", 6, 2, 65, 2))
sketch1.addConstraint(Sketcher.Constraint("Vertical", 9, 3, 11, 3))
sketch1.addConstraint(Sketcher.Constraint("Vertical", 11, 3, 13, 3))
sketch1.addConstraint(Sketcher.Constraint("Vertical", 15, 3, 9, 2))
sketch1.addConstraint(Sketcher.Constraint("Vertical", 10, 2, 11, 2))
sketch1.addConstraint(Sketcher.Constraint("Vertical", 12, 2, 13, 2))
sketch1.addConstraint(Sketcher.Constraint("Vertical", 63, 3, 41, 2))
sketch1.addConstraint(Sketcher.Constraint("Vertical", 42, 2, 43, 2))
sketch1.addConstraint(Sketcher.Constraint("Vertical", 60, 2, 61, 2))
sketch1.addConstraint(Sketcher.Constraint("Equal", 36, 68))
sketch1.addConstraint(Sketcher.Constraint("Equal", 58, 2))
sketch1.addConstraint(Sketcher.Constraint("Equal", 38, 10))
sketch1.addConstraint(Sketcher.Constraint("Equal", 66, 14))
sketch1.addConstraint(Sketcher.Constraint("Equal", 2, 22))
sketch1.addConstraint(Sketcher.Constraint("Equal", 20, 44))
sketch1.addConstraint(Sketcher.Constraint("Equal", 26, 78))
sketch1.addConstraint(Sketcher.Constraint("Radius", 5, Q("0.02 in")))
sketch1.addConstraint(Sketcher.Constraint("Radius", 25, Q("0.04 in")))
sketch1.addConstraint(Sketcher.Constraint("Diameter", 80, Q("0.205 in")))
sketch1.addConstraint(Sketcher.Constraint("Radius", 8, Q("0.083 in")))
sketch1.addConstraint(Sketcher.Constraint("Radius", 27, Q("0.125 in")))
sketch1.addConstraint(Sketcher.Constraint("DistanceY", 5, 3, -1, 1, Q("0.5 in")))
sketch1.addConstraint(Sketcher.Constraint("DistanceX", 9, 3, -1, 1, Q("0.5 in")))
sketch1.addConstraint(Sketcher.Constraint("Radius", 1, Q("0.0413 in")))
sketch1.addConstraint(Sketcher.Constraint("DistanceX", 46, 2, 46, 1, Q("0.0044 in")))
sketch1.addConstraint(Sketcher.Constraint("DistanceX", 7, 3, -1, 1, Q("0.396 in")))
sketch1.addConstraint(Sketcher.Constraint("DistanceX", 8, 3, -1, 1, Q("0.417 in")))
sketch1.addConstraint(Sketcher.Constraint("DistanceY", 8, 3, -1, 1, Q("0.417 in")))
sketch1.addConstraint(Sketcher.Constraint("DistanceY", 9, 3, -1, 1, Q("0.396 in")))
sketch1.addConstraint(Sketcher.Constraint("DistanceY", -1, 1, 27, 3, Q("0.302 in")))
sketch1.addConstraint(Sketcher.Constraint("DistanceX", 81, 2, -1, 1, Q("0.413 in")))
sketch1.addConstraint(Sketcher.Constraint("Radius", 31, Q("1.033909 mm")))
sketch1.addConstraint(Sketcher.Constraint("Radius", 49, Q("1.027411 mm")))
sketch1.addConstraint(Sketcher.Constraint("DistanceX", 1, 3, -1, 1, Q("0.1688 in")))
sketch1.addConstraint(Sketcher.Constraint("DistanceX", -1, 1, 51, 3, Q("0.3025 in")))
sketch1.addConstraint(Sketcher.Constraint("Radius", 73, Q("1.019334 mm")))
sketch1.addConstraint(Sketcher.Constraint("Radius", 81, Q("1.009018 mm")))
sketch1.addConstraint(Sketcher.Constraint("Radius", 83, Q("1.017754 mm")))
sketch1.addConstraint(Sketcher.Constraint("DistanceX", 0, 1, 0, 2, Q("2.12889 mm")))
sketch1.addConstraint(Sketcher.Constraint("DistanceY", 12, 1, 12, 2, Q("10.634218 mm")))
sketch1.addConstraint(Sketcher.Constraint("DistanceY", 48, 1, 48, 2, Q("2.114619 mm")))
sketch1.addConstraint(Sketcher.Constraint("DistanceY", 82, 2, 82, 1, Q("12.871809 mm")))
sketch1.addConstraint(Sketcher.Constraint("DistanceX", -1, 1, 29, 3, Q("1.6573 mm")))
sketch1.addConstraint(Sketcher.Constraint("Distance", 30, Q("4.67237 mm")))
sketch1.addConstraint(Sketcher.Constraint("DistanceX", 24, 2, 24, 1, Q("2.128915 mm")))
sketch1.setExpression("Constraints[208]", "Params.sketch1_radius")
sketch1.setExpression("Constraints[209]", "Params.sketch1_radius2")
sketch1.setExpression("Constraints[210]", "Params.sketch1_diameter")
sketch1.setExpression("Constraints[211]", "Params.sketch1_radius3")
sketch1.setExpression("Constraints[212]", "Params.sketch1_radius4")
pad1 = doc.addObject("PartDesign::Pad", "Pad")
body.addObject(pad1)
pad1.Profile = sketch1
pad1.setExpression("Length", "Params.pad1_length")

# Sketch on YZ plane
sketch2 = doc.addObject("Sketcher::SketchObject", "Sketch001")
body.addObject(sketch2)
sketch2.AttachmentSupport = (doc.YZ_Plane, [""])
sketch2.MapMode = "FlatFace"
sketch2.AttachmentOffset = App.Placement(App.Vector(0, 0, -0.5 * 25.4), App.Rotation())
sketch2.addGeometry(Part.Circle(App.Vector(0, -76, 0), App.Vector(0, 0, 1), 6), False)
sketch2.addConstraint(Sketcher.Constraint("PointOnObject", 0, 3, -2))
sketch2.addConstraint(Sketcher.Constraint("Diameter", 0, Q("0.5 in")))
sketch2.addConstraint(Sketcher.Constraint("DistanceY", 0, 3, -1, 1, Q("3 in")))
sketch2.setExpression("Constraints[1]", "Params.sketch2_diameter")
pocket1 = doc.addObject("PartDesign::Pocket", "Pocket")
body.addObject(pocket1)
pocket1.Profile = sketch2
pocket1.Type = "ThroughAll"
pocket1.Reversed = True

doc.recompute()
